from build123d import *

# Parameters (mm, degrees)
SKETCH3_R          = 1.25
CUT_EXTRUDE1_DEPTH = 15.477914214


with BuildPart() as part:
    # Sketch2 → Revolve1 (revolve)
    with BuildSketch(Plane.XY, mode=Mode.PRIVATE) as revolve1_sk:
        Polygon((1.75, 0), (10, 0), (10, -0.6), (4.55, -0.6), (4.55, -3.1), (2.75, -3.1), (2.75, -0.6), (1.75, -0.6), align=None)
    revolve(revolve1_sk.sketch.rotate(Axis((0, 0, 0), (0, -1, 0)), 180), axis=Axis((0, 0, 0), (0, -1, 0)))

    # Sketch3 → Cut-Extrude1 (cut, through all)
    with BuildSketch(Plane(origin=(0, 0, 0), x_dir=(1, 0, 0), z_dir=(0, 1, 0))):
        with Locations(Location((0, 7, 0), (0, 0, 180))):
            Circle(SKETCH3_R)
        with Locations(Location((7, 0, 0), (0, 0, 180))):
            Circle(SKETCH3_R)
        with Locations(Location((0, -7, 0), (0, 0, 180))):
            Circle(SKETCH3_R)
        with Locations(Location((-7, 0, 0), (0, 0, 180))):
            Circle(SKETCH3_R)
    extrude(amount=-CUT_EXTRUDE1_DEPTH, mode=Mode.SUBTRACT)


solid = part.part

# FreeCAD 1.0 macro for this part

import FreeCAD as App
import Part
import Sketcher

V = App.Vector
Q = App.Units.Quantity


def add_polygon(sketch, points):
    """Adds a closed chain of lines whose ends are joined by coincident constraints."""
    first, n = sketch.GeometryCount, len(points)
    for a, b in zip(points, points[1:] + points[:1]):
        sketch.addGeometry(Part.LineSegment(App.Vector(*a, 0), App.Vector(*b, 0)), False)
    for i in range(n):
        sketch.addConstraint(Sketcher.Constraint("Coincident", first + i, 2, first + (i + 1) % n, 1))

doc = App.newDocument("Part")
body = doc.addObject("PartDesign::Body", "Body")

# Sketch on XY plane
sketch1 = body.newObject("Sketcher::SketchObject", "Sketch")
sketch1.AttachmentSupport = (doc.getObject("XY_Plane"), [""])
sketch1.MapMode = "FlatFace"
add_polygon(sketch1, [(10, 0), (1.8, 0), (1.8, -0.6), (2.8, -0.6), (2.8, -3.1), (4.5, -3.1), (4.5, -0.6), (10, -0.6)])  # lines 0-7
sketch1.addConstraint([
    Sketcher.Constraint("Horizontal", 0),
    Sketcher.Constraint("Vertical", 1),
    Sketcher.Constraint("Horizontal", 2),
    Sketcher.Constraint("Vertical", 3),
    Sketcher.Constraint("Horizontal", 4),
    Sketcher.Constraint("Vertical", 5),
    Sketcher.Constraint("Horizontal", 6),
    Sketcher.Constraint("Vertical", 7),
    Sketcher.Constraint("PointOnObject", 0, 2, -1),
    Sketcher.Constraint("Horizontal", 2, 2, 5, 2),
    Sketcher.Constraint("DistanceX", 2, 1, 2, 2, Q("1 mm")),
    Sketcher.Constraint("DistanceX", 4, 1, 4, 2, Q("1.8 mm")),
    Sketcher.Constraint("DistanceY", 1, 2, 1, 1, Q("0.6 mm")),
    Sketcher.Constraint("DistanceY", 3, 2, 3, 1, Q("2.5 mm")),
    Sketcher.Constraint("DistanceX", -1, 1, 6, 2, Q("10 mm")),
    Sketcher.Constraint("DistanceX", 0, 2, 0, 1, Q("8.25 mm")),
])
revolution = body.newObject("PartDesign::Revolution", "Revolution")
revolution.Profile = sketch1
revolution.ReferenceAxis = (sketch1, ["V_Axis"])
revolution.Angle = 360

# Sketch on XZ plane
sketch2 = body.newObject("Sketcher::SketchObject", "Sketch001")
sketch2.AttachmentSupport = (doc.getObject("XZ_Plane"), [""])
sketch2.MapMode = "FlatFace"
sketch2.addGeometry([
    Part.Circle(V(0, -7, 0), V(0, 0, 1), 1.2),
    Part.Circle(V(7, 0, 0), V(0, 0, 1), 1.2),
    Part.Circle(V(0, 7, 0), V(0, 0, 1), 1.2),
    Part.Circle(V(-7, 0, 0), V(0, 0, 1), 1.2),
], False)
sketch2.addConstraint([
    Sketcher.Constraint("Equal", 0, 1),
    Sketcher.Constraint("Equal", 1, 2),
    Sketcher.Constraint("Equal", 2, 3),
    Sketcher.Constraint("Symmetric", 0, 3, 2, 3, -1, 1),
    Sketcher.Constraint("Symmetric", 1, 3, 3, 3, -1, 1),
    Sketcher.Constraint("PointOnObject", 0, 3, -2),
    Sketcher.Constraint("PointOnObject", 1, 3, -1),
    Sketcher.Constraint("Diameter", 0, Q("2.5 mm")),
    Sketcher.Constraint("DistanceY", 0, 3, -1, 1, Q("7 mm")),
    Sketcher.Constraint("DistanceX", -1, 1, 1, 3, Q("7 mm")),
])
pocket1 = body.newObject("PartDesign::Pocket", "Pocket")
pocket1.Profile = sketch2
pocket1.Type = "ThroughAll"
pocket1.Reversed = True

doc.recompute()
